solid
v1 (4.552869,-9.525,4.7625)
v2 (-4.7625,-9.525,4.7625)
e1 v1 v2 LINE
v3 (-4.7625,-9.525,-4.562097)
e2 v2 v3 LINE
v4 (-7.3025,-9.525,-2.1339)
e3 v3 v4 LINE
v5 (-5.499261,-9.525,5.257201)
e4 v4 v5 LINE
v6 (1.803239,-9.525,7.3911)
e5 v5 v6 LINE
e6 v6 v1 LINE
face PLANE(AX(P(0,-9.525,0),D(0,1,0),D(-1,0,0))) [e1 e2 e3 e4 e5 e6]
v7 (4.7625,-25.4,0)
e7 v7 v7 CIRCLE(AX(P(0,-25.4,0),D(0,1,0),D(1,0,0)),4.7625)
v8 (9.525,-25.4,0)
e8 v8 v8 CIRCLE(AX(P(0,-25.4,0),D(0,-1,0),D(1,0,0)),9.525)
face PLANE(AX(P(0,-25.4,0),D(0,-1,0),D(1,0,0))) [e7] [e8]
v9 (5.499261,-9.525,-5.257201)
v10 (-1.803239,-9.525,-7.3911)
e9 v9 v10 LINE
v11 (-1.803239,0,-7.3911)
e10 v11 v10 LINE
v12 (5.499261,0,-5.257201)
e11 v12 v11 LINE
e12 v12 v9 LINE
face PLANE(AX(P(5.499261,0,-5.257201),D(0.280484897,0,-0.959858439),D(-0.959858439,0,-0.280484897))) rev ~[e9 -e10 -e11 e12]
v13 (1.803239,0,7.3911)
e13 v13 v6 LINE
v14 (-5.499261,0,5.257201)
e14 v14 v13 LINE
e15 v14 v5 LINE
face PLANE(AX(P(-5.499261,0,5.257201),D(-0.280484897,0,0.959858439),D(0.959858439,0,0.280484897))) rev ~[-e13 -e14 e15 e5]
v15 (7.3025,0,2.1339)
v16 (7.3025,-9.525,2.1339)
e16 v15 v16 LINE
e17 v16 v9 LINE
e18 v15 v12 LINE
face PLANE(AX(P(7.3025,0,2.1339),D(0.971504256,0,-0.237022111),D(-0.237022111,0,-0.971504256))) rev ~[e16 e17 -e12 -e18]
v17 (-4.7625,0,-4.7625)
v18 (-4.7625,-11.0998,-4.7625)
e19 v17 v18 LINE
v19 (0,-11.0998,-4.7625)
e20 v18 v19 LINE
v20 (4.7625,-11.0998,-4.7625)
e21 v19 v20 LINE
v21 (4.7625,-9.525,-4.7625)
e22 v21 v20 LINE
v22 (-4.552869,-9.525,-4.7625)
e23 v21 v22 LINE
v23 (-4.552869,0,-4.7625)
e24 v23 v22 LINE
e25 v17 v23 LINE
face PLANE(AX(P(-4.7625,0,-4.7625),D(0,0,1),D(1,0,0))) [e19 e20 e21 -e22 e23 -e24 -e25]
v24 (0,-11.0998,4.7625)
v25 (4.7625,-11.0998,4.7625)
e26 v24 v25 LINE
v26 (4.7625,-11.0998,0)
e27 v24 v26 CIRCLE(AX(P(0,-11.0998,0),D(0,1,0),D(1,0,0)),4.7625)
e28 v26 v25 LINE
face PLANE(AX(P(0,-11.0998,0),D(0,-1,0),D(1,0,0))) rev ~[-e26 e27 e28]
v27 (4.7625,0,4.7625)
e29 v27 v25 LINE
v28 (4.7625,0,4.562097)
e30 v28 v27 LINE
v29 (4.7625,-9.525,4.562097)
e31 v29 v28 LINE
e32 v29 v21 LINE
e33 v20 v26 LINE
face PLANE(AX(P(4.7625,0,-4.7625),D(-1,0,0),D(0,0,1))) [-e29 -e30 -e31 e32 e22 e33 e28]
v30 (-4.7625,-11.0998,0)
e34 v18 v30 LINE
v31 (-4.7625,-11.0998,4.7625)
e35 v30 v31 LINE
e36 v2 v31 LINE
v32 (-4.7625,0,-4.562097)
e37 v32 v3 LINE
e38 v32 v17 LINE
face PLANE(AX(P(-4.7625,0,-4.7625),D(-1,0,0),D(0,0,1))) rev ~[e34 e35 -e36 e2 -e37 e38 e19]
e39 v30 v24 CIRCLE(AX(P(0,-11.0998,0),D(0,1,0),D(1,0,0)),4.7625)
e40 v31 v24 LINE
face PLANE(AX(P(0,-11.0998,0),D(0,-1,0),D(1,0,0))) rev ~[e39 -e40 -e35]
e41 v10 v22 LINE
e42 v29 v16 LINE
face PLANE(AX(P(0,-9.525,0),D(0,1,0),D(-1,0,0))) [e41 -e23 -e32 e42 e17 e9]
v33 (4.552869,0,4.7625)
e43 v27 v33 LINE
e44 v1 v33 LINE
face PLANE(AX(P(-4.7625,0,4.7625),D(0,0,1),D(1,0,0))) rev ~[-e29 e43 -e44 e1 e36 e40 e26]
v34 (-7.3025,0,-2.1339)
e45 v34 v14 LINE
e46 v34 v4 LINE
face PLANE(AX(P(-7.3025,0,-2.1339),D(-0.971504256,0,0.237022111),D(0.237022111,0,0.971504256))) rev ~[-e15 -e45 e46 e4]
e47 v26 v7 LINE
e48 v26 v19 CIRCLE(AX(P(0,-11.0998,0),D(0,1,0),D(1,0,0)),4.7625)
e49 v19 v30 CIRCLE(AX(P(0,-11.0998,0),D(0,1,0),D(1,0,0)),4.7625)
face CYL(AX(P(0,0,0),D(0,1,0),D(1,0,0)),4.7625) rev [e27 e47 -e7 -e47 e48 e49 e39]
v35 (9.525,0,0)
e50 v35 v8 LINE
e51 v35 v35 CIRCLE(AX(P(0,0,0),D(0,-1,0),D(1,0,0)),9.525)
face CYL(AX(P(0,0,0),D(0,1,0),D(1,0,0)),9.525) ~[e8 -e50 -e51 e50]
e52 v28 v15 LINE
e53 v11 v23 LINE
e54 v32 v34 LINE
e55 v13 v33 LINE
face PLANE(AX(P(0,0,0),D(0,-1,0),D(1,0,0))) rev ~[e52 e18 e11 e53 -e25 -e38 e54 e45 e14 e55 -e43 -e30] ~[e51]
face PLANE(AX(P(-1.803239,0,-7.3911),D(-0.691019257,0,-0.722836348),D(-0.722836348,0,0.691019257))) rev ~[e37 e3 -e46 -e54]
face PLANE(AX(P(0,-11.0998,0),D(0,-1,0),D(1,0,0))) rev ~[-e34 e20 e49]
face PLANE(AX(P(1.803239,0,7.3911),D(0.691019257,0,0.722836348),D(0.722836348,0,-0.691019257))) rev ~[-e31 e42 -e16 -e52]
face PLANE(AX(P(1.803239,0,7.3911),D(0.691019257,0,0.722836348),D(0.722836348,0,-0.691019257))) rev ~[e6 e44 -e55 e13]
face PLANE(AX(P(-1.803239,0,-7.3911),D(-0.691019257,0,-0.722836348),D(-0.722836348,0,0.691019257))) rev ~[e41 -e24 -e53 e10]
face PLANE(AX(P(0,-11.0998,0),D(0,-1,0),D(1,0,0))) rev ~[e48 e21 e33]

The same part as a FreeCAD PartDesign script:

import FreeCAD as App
import Part
import Sketcher
from FreeCAD import Vector
Q = App.Units.Quantity


def add_polygon(sketch, points):
    """Adds a closed chain of lines whose ends are joined by coincident constraints."""
    first, n = sketch.GeometryCount, len(points)
    for a, b in zip(points, points[1:] + points[:1]):
        sketch.addGeometry(Part.LineSegment(App.Vector(*a, 0), App.Vector(*b, 0)), False)
    for i in range(n):
        sketch.addConstraint(Sketcher.Constraint("Coincident", first + i, 2, first + (i + 1) % n, 1))

doc = App.newDocument("Part")
body = doc.addObject("PartDesign::Body", "Body")

# Sketch on XZ plane
sketch1 = doc.addObject("Sketcher::SketchObject", "Sketch")
body.addObject(sketch1)
sketch1.AttachmentSupport = (doc.XZ_Plane, [""])
sketch1.MapMode = "FlatFace"
sketch1.addGeometry(Part.Circle(Vector(0, 0, 0), Vector(0, 0, 1), 10), False)
sketch1.addConstraint([
    Sketcher.Constraint("Coincident", 0, 3, -1, 1),
    Sketcher.Constraint("Diameter", 0, Q("0.75 in")),
])
pad1 = doc.addObject("PartDesign::Pad", "Pad")
body.addObject(pad1)
pad1.Profile = sketch1
pad1.Length = Q("1 in")

# Sketch on XZ plane
sketch2 = doc.addObject("Sketcher::SketchObject", "Sketch001")
body.addObject(sketch2)
sketch2.AttachmentSupport = (doc.XZ_Plane, [""])
sketch2.MapMode = "FlatFace"
sketch2.addGeometry(Part.Circle(Vector(0, 0, 0), Vector(0, 0, 1), 4.8), False)
sketch2.addConstraint([
    Sketcher.Constraint("Coincident", 0, 3, -1, 1),
    Sketcher.Constraint("Diameter", 0, Q("0.375 in")),
])
pocket1 = doc.addObject("PartDesign::Pocket", "Pocket")
body.addObject(pocket1)
pocket1.Profile = sketch2
pocket1.Type = "ThroughAll"
pocket1.Reversed = True

# Sketch on XZ plane
sketch3 = doc.addObject("Sketcher::SketchObject", "Sketch002")
body.addObject(sketch3)
sketch3.AttachmentSupport = (doc.XZ_Plane, [""])
sketch3.MapMode = "FlatFace"
add_polygon(sketch3, [(-5, 5), (-5, -5), (5, -5), (5, 5)])  # lines 0-3
sketch3.addConstraint([
    Sketcher.Constraint("Vertical", 0),
    Sketcher.Constraint("Horizontal", 1),
    Sketcher.Constraint("Vertical", 2),
    Sketcher.Constraint("Horizontal", 3),
    Sketcher.Constraint("Symmetric", 0, 2, 2, 2, -1, 1),
    Sketcher.Constraint("Equal", 3, 0),
    Sketcher.Constraint("DistanceX", 1, 1, 1, 2, Q("0.375 in")),
])
pocket2 = doc.addObject("PartDesign::Pocket", "Pocket001")
body.addObject(pocket2)
pocket2.Profile = sketch3
pocket2.Length = Q("0.437 in")
pocket2.Reversed = True

# Sketch on XZ plane
sketch4 = doc.addObject("Sketcher::SketchObject", "Sketch003")
body.addObject(sketch4)
sketch4.AttachmentSupport = (doc.XZ_Plane, [""])
sketch4.MapMode = "FlatFace"
add_polygon(sketch4, [(2, 7), (7, 2), (5, -5), (-2, -7), (-7, -2), (-5, 5)])  # lines 0-5
sketch4.addConstraint([
    Sketcher.Constraint("Symmetric", 0, 2, 3, 2, -1, 1),
    Sketcher.Constraint("Symmetric", 1, 2, 4, 2, -1, 1),
    Sketcher.Constraint("Symmetric", 2, 2, 5, 2, -1, 1),
    Sketcher.Constraint("Equal", 0, 1),
    Sketcher.Constraint("Equal", 1, 2),
    Sketcher.Constraint("DistanceY", 2, 2, 0, 2, Q("0.375 in")),
    Sketcher.Constraint("DistanceX", 3, 2, 0, 2, Q("0.575 in")),
    Sketcher.Constraint("DistanceX", 2, 2, 1, 2, Q("0.2875 in")),
    Sketcher.Constraint("DistanceY", -1, 1, 0, 2, Q("2.1339 mm")),
])
pocket3 = doc.addObject("PartDesign::Pocket", "Pocket002")
body.addObject(pocket3)
pocket3.Profile = sketch4
pocket3.Length = Q("0.375 in")
pocket3.Reversed = True

doc.recompute()
